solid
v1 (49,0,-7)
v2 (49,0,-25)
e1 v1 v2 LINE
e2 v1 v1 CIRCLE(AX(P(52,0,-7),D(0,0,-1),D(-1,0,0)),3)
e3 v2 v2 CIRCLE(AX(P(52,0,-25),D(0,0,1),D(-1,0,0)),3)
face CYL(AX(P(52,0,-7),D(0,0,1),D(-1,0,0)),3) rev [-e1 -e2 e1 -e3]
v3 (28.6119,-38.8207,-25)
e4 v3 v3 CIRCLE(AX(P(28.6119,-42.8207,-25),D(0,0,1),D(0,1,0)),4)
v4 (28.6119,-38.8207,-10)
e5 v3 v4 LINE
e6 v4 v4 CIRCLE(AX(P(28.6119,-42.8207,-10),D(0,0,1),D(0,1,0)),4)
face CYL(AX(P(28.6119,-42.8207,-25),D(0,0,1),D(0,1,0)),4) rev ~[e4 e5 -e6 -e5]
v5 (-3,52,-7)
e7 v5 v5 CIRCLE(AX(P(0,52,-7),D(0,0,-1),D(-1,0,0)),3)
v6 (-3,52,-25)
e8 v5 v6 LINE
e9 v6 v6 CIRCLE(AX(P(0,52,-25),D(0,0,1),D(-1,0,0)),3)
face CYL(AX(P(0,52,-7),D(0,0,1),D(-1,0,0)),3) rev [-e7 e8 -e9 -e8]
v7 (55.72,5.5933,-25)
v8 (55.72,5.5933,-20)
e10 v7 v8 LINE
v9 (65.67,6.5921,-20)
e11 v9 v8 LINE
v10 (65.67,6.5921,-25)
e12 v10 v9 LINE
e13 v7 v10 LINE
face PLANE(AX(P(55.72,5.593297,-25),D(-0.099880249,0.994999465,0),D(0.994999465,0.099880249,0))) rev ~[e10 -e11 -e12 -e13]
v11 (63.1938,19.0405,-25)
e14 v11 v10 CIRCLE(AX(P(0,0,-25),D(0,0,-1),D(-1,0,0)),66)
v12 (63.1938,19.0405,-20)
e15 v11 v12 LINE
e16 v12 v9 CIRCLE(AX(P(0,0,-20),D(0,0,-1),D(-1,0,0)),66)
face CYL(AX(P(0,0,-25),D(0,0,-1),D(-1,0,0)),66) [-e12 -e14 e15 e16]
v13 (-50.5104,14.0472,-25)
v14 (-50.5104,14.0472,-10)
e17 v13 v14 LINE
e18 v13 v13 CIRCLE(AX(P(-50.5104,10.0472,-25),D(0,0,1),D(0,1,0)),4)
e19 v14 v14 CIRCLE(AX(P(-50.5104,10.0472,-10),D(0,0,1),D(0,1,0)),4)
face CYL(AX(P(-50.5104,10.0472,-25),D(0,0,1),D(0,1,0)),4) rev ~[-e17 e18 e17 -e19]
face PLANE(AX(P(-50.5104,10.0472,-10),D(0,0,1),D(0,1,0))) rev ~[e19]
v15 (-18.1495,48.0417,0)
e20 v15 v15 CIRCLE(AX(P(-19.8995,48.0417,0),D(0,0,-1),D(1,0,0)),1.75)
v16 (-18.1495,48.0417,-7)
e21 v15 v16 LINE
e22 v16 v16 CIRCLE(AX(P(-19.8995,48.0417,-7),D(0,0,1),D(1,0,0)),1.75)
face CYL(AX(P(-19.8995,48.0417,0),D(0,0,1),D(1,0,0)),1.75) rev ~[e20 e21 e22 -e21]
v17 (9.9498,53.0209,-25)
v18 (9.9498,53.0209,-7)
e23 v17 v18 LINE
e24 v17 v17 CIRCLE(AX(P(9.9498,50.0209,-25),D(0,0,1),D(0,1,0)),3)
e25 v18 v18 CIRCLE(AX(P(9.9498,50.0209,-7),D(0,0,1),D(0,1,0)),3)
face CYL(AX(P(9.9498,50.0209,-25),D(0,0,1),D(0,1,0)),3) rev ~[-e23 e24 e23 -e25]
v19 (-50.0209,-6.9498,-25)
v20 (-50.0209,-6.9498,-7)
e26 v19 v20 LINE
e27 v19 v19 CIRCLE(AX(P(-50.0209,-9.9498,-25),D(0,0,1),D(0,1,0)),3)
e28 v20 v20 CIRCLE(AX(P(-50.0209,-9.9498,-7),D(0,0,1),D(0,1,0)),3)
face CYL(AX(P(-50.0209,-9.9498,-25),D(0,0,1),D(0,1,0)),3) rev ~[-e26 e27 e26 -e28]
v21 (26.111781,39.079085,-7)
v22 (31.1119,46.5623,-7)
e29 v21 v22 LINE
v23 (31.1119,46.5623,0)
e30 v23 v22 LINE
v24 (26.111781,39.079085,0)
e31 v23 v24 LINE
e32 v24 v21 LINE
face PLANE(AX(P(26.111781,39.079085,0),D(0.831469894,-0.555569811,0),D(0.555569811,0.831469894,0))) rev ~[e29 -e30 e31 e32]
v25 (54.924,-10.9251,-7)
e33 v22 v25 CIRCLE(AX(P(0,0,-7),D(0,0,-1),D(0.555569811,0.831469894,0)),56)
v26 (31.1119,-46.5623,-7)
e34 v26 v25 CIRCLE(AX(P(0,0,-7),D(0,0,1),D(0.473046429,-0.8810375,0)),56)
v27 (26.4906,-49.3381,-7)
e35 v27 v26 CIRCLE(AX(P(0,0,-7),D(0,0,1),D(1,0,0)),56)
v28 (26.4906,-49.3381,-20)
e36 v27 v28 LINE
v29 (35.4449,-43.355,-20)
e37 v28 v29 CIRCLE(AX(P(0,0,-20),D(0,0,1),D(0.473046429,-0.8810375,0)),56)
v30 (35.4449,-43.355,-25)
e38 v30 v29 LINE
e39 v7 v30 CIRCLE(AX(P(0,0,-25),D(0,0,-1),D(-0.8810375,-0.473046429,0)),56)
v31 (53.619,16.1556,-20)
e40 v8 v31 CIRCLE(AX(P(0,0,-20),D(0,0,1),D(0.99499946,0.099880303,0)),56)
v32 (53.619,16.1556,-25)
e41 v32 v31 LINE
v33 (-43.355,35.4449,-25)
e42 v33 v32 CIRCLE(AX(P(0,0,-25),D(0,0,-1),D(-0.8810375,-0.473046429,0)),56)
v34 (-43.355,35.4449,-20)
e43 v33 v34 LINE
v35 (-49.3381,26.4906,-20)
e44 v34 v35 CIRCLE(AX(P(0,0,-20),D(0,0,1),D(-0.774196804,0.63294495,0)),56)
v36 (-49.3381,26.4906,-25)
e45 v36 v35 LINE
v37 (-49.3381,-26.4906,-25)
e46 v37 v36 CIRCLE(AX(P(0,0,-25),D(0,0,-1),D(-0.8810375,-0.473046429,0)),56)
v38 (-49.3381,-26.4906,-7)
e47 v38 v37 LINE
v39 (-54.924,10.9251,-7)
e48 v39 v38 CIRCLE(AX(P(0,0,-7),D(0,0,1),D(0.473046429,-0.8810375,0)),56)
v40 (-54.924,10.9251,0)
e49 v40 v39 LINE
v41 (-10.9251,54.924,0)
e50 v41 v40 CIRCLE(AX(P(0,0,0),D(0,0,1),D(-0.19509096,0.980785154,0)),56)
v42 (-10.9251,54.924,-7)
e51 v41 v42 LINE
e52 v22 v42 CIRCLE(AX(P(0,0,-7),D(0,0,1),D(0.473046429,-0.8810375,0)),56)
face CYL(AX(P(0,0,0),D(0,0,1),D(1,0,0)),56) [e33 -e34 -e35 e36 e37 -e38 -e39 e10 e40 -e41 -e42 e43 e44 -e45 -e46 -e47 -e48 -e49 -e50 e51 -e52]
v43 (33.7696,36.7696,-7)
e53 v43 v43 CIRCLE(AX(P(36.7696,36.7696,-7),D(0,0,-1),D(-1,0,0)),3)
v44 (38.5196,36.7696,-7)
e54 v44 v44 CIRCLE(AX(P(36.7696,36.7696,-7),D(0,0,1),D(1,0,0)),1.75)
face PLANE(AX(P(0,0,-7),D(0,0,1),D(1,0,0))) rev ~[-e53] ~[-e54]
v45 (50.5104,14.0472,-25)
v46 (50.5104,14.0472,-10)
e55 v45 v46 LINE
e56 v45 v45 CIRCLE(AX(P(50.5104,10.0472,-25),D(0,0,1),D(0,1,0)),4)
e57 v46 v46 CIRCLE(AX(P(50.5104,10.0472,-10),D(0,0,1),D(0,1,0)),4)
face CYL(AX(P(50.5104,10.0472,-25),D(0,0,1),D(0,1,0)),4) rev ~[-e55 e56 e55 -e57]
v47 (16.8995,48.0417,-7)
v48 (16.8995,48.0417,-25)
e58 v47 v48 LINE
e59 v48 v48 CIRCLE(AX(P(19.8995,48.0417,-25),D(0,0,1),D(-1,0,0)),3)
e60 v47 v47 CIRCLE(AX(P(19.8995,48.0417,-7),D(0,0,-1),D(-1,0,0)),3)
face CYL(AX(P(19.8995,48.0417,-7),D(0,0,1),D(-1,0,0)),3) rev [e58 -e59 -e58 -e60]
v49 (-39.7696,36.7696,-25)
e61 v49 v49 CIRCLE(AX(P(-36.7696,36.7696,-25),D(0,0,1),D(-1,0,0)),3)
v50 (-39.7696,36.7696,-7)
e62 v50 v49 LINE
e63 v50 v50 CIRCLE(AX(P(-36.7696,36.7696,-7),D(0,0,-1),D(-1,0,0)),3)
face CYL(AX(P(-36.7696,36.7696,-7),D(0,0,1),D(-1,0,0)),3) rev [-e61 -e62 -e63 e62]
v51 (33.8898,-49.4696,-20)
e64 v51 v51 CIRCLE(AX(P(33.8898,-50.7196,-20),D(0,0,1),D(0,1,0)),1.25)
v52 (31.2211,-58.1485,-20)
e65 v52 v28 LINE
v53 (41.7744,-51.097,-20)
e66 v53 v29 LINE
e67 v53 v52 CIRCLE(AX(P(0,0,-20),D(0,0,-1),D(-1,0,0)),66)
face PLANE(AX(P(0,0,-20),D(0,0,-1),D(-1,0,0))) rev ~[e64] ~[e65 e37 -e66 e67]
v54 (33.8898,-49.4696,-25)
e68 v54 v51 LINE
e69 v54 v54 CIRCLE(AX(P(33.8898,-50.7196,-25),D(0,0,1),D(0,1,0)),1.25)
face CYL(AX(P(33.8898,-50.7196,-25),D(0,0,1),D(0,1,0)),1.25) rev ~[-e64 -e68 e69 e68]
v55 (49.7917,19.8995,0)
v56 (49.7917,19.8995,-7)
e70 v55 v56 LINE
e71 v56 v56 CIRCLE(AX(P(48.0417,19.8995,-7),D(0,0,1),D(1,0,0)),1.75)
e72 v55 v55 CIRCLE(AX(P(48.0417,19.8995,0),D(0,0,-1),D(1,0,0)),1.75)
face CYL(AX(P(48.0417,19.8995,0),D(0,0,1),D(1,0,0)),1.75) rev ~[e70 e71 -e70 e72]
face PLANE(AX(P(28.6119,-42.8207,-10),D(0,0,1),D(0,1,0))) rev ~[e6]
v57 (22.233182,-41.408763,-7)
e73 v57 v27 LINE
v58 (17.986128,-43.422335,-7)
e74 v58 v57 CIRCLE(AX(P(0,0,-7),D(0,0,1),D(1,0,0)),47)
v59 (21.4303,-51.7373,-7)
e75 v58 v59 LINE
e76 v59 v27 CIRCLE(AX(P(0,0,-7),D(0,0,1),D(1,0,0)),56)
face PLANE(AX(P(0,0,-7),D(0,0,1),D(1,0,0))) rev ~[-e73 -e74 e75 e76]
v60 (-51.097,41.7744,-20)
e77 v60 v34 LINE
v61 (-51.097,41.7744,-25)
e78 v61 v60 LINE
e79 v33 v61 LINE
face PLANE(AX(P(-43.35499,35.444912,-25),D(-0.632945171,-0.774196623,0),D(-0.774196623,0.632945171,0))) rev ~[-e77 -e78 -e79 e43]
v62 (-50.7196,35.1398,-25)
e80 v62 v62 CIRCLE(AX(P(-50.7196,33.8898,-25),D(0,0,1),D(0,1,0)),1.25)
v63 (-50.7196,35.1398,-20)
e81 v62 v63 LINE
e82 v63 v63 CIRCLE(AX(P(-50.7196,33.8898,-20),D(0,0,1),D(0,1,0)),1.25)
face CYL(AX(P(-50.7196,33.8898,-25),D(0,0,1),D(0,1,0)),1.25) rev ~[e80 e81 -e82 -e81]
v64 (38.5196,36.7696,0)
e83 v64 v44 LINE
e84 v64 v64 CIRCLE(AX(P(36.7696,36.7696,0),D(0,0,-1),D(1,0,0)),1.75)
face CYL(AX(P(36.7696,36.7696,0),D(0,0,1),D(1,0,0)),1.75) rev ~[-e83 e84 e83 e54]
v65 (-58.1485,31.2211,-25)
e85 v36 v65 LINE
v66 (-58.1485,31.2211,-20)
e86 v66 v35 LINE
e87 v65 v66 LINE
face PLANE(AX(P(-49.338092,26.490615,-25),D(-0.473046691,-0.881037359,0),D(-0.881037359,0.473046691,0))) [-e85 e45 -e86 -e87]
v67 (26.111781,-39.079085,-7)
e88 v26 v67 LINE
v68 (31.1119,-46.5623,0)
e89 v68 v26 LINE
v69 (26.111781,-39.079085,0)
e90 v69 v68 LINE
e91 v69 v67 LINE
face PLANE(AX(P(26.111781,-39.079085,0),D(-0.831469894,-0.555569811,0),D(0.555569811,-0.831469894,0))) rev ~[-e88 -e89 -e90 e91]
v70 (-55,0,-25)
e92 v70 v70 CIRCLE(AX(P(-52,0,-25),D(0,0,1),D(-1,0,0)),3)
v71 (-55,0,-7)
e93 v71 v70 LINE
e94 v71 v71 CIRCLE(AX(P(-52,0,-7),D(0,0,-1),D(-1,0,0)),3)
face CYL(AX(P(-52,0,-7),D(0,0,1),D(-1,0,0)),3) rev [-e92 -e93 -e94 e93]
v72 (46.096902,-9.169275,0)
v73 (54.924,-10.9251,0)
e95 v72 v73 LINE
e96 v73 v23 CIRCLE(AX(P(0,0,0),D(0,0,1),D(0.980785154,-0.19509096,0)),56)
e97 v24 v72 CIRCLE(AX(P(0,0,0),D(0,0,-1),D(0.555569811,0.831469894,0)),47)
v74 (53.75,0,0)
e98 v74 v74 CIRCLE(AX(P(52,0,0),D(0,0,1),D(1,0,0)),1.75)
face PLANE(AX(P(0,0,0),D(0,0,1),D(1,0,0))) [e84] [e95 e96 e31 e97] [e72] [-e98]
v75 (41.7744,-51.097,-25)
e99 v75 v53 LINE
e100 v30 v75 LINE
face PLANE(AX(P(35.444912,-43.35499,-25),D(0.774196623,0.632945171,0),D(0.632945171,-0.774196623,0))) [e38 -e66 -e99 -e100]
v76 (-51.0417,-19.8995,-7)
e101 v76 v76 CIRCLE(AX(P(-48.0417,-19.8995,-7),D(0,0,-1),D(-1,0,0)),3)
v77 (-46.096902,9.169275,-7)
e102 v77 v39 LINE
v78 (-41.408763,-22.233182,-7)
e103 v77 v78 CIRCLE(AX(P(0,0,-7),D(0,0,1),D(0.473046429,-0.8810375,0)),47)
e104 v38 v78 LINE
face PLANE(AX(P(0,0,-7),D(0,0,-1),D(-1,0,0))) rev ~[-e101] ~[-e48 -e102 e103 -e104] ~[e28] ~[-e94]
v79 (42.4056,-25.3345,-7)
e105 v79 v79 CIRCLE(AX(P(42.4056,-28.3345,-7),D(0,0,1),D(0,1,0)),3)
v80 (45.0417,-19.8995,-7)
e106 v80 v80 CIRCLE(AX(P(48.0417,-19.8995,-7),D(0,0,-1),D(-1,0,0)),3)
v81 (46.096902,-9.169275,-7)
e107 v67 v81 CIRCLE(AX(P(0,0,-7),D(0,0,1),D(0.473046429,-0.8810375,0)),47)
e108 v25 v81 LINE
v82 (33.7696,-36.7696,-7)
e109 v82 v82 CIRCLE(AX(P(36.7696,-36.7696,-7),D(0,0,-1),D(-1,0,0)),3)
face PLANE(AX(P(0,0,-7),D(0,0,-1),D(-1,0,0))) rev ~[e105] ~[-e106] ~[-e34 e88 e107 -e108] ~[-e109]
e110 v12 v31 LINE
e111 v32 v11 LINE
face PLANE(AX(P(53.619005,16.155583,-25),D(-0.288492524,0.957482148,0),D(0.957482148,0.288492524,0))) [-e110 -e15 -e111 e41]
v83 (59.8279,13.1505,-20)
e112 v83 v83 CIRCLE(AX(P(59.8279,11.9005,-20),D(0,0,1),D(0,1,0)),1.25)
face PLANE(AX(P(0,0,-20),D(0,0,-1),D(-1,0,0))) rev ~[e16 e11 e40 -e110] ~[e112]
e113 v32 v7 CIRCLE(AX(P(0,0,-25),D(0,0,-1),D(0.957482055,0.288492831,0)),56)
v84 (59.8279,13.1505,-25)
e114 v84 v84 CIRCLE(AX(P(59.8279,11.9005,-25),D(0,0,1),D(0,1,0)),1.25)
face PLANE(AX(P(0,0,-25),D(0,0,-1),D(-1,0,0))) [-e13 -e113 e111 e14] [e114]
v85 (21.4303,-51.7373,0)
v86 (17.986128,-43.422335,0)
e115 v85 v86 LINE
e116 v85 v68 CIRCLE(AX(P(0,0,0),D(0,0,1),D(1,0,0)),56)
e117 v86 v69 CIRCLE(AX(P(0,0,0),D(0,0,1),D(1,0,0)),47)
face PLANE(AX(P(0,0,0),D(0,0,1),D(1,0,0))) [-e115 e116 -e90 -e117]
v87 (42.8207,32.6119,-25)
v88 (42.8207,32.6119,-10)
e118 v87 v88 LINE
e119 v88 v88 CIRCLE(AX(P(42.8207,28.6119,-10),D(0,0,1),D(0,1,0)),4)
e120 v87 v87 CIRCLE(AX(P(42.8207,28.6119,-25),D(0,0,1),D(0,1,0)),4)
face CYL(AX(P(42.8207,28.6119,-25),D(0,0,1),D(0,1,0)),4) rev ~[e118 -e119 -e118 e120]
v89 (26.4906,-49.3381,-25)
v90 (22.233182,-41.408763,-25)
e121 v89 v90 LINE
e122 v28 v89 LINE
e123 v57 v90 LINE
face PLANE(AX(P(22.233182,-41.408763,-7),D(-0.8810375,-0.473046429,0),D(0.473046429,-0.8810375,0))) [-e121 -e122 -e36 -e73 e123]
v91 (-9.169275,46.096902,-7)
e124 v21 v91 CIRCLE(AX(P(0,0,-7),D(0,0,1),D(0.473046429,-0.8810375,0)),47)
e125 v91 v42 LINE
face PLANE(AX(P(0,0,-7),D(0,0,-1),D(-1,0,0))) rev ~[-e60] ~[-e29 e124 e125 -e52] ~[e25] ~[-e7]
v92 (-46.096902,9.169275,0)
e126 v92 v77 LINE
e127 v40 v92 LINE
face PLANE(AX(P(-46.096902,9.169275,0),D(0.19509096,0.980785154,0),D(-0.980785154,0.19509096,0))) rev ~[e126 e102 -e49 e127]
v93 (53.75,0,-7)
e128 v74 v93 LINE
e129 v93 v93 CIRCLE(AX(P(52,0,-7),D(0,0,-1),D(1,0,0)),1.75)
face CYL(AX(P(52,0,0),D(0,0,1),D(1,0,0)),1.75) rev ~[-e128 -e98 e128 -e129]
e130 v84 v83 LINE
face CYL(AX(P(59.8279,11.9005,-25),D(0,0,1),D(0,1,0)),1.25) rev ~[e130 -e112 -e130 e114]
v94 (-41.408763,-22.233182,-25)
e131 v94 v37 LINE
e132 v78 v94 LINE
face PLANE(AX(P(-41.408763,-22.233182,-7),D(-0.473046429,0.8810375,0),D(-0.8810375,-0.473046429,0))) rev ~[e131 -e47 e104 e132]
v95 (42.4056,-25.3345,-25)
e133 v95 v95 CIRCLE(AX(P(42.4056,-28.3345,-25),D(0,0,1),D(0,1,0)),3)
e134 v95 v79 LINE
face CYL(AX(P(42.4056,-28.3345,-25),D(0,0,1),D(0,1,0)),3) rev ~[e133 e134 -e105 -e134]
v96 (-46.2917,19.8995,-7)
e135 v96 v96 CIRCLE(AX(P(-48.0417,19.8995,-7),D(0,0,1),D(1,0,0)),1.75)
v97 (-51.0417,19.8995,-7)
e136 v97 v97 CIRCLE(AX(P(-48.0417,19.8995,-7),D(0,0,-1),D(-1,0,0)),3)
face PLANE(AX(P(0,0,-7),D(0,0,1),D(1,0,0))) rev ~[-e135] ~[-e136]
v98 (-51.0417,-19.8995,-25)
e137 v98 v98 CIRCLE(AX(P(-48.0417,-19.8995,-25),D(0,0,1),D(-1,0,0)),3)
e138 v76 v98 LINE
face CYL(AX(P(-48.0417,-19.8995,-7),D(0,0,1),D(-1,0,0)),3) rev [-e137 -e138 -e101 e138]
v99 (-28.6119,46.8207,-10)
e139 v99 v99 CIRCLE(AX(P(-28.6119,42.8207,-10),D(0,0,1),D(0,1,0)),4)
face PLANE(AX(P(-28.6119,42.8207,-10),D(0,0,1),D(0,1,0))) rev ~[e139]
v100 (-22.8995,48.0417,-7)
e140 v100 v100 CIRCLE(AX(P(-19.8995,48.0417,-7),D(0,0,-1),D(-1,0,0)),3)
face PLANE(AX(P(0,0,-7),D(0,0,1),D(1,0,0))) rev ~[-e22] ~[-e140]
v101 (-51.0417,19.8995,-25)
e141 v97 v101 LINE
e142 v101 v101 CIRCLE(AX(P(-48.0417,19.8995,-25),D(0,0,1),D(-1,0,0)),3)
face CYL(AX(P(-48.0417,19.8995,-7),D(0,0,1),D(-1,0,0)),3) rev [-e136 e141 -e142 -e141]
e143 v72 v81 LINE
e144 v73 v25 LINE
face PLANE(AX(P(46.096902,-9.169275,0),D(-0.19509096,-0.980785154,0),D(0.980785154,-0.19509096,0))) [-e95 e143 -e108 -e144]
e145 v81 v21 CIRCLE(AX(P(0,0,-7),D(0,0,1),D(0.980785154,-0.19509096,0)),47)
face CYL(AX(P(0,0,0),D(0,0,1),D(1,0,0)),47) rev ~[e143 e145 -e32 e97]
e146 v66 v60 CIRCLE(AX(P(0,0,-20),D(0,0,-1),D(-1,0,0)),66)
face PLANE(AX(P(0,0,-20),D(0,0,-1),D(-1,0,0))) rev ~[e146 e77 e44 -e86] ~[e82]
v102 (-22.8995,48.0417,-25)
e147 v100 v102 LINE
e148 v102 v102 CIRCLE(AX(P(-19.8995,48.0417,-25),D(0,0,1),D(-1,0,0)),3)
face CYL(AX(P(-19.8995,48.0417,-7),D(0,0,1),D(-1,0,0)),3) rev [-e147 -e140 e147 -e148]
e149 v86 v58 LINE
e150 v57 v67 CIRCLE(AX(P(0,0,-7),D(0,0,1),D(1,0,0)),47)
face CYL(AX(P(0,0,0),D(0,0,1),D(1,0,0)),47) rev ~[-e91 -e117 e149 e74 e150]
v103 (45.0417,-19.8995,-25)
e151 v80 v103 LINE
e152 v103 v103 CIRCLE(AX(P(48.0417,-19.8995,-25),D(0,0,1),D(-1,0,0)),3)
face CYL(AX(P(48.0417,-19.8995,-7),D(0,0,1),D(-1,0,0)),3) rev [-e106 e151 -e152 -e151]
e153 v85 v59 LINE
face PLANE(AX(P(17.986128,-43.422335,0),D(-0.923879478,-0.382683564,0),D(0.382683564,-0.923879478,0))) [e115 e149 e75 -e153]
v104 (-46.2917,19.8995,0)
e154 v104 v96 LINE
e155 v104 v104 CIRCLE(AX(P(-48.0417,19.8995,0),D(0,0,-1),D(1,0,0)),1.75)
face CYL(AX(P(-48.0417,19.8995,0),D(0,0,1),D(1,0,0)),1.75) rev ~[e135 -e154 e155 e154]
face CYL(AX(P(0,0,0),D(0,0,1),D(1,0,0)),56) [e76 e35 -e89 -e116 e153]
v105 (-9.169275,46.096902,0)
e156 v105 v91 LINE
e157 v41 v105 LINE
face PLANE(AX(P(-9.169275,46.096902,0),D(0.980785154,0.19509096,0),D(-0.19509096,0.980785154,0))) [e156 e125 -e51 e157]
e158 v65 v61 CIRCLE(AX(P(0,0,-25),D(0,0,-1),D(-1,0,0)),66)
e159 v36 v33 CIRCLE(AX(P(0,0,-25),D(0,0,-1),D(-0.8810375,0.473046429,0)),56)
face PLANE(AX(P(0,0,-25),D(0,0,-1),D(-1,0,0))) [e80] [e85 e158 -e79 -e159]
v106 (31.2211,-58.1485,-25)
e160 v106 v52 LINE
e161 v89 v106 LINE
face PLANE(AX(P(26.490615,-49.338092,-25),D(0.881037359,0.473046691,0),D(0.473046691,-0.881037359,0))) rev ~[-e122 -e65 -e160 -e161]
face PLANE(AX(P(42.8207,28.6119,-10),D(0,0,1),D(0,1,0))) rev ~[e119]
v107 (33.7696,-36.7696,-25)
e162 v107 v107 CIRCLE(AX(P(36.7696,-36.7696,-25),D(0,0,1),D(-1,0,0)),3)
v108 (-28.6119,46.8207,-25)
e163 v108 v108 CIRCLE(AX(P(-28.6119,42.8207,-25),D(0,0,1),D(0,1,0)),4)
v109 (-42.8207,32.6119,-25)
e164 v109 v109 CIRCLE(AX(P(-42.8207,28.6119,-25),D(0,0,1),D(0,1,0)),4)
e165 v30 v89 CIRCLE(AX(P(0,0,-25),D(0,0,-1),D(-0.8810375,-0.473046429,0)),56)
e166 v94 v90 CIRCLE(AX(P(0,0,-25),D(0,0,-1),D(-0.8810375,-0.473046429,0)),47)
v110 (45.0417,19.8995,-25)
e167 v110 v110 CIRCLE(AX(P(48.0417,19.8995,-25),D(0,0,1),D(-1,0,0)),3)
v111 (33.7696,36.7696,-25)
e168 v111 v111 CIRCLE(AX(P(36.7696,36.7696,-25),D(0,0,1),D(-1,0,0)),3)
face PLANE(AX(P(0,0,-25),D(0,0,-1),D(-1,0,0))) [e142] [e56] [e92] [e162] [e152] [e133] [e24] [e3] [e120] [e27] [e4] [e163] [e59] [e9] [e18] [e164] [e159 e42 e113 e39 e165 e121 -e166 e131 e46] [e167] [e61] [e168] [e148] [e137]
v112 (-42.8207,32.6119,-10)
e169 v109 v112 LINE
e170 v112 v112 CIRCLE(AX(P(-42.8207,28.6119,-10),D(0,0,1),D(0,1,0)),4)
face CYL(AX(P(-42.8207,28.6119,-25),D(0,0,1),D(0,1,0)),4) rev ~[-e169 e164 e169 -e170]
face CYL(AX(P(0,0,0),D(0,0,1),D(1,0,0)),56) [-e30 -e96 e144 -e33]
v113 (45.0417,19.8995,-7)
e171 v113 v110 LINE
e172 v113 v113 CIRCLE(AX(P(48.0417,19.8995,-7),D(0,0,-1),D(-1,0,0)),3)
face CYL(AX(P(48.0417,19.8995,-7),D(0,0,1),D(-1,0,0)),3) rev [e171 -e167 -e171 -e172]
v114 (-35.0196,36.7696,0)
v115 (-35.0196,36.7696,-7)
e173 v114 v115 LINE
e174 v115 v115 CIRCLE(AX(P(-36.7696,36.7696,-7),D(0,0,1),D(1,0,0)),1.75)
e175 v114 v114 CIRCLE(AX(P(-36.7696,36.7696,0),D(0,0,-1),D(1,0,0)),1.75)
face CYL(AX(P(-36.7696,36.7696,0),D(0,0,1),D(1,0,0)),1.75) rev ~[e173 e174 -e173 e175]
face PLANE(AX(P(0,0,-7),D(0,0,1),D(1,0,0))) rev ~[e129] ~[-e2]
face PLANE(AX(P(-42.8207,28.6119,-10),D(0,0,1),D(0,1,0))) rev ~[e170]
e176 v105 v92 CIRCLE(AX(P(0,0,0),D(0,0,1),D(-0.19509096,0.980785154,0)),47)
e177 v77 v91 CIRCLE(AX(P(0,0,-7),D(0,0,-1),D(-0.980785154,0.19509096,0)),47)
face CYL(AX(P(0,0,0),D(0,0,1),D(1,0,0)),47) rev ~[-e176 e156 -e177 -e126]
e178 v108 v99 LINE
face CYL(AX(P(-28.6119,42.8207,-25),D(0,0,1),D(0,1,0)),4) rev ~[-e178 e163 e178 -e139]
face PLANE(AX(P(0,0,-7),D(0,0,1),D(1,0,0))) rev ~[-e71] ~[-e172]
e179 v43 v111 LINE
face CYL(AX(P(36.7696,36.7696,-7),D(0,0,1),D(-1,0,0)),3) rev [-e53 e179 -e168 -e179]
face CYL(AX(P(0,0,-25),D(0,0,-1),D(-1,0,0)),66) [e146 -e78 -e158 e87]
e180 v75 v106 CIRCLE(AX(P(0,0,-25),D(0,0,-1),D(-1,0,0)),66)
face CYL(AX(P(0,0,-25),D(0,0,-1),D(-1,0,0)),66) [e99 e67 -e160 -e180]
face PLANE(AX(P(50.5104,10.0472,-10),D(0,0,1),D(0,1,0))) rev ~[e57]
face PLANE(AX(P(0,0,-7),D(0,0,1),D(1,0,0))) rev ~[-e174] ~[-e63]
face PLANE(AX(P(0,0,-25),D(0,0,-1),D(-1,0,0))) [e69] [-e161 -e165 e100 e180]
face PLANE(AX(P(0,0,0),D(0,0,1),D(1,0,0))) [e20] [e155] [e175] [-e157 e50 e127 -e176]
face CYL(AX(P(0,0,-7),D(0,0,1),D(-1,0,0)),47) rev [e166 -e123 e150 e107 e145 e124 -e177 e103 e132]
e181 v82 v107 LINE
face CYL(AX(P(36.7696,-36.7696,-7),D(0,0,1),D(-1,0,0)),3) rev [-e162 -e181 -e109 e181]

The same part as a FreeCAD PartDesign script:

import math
import FreeCAD as App
import Part
import Sketcher

V = App.Vector
Q = App.Units.Quantity

doc = App.newDocument("Part")
params = doc.addObject("Spreadsheet::Sheet", "Params")
for row, (alias, value) in enumerate([
    ("sketch1_radius", "56 mm"),
    ("sketch1_radius2", "47 mm"),
    ("sketch1_diameter", "3.5 mm"),
    ("pad1_length", "7 mm"),
    ("sketch2_diameter", "6 mm"),
    ("sketch2_radius", "56 mm"),
    ("sketch2_radius2", "47 mm"),
    ("pad2_length", "18 mm"),
    ("sketch3_diameter", "8 mm"),
    ("hole_diameter", "8 mm"),
    ("hole_depth", "15 mm"),
    ("sketch4_radius", "56 mm"),
    ("sketch4_radius2", "66 mm"),
    ("pad3_length", "5 mm"),
    ("sketch5_diameter", "2.5 mm"),
    ("hole2_diameter", "2.5 mm"),
    ("sketch6_diameter", "6 mm"),
    ("hole3_diameter", "6 mm"),
], start=1):
    params.set(f"A{row}", alias)
    params.set(f"B{row}", "=" + value)
    params.setAlias(f"B{row}", alias)

body = doc.addObject("PartDesign::Body", "Body")
body.AllowCompound = True

# Sketch on XY plane
sketch1 = body.newObject("Sketcher::SketchObject", "Sketch")
sketch1.AttachmentSupport = (doc.getObject("XY_Plane"), [""])
sketch1.MapMode = "FlatFace"
sketch1.addGeometry(Part.LineSegment(V(46.1, -9.2, 0), V(54.9, -10.9, 0)), False)
sketch1.addGeometry(Part.ArcOfCircle(Part.Circle(V(0, 0, 0), V(0, 0, 1), 56), math.radians(-11), math.radians(56)), False)
sketch1.addGeometry(Part.LineSegment(V(31.1, 46.6, 0), V(26.1, 39.1, 0)), False)
sketch1.addGeometry(Part.ArcOfCircle(Part.Circle(V(0, 0, 0), V(0, 0, 1), 47), math.radians(-11), math.radians(56)), False)
sketch1.addGeometry(Part.Circle(V(52, 0, 0), V(0, 0, 1), 1.8), False)
sketch1.addGeometry(Part.Circle(V(48, 19.9, 0), V(0, 0, 1), 1.8), False)
sketch1.addGeometry(Part.Circle(V(36.8, 36.8, 0), V(0, 0, 1), 1.8), False)
sketch1.addGeometry(Part.LineSegment(V(-9.2, 46.1, 0), V(-10.9, 54.9, 0)), False)
sketch1.addGeometry(Part.ArcOfCircle(Part.Circle(V(0, 0, 0), V(0, 0, 1), 56), math.radians(101), math.radians(169)), False)
sketch1.addGeometry(Part.LineSegment(V(-54.9, 10.9, 0), V(-46.1, 9.2, 0)), False)
sketch1.addGeometry(Part.ArcOfCircle(Part.Circle(V(0, 0, 0), V(0, 0, 1), 47), math.radians(101), math.radians(169)), False)
sketch1.addGeometry(Part.Circle(V(-19.9, 48, 0), V(0, 0, 1), 1.8), False)
sketch1.addGeometry(Part.Circle(V(-36.8, 36.8, 0), V(0, 0, 1), 1.8), False)
sketch1.addGeometry(Part.Circle(V(-48, 19.9, 0), V(0, 0, 1), 1.8), False)
sketch1.addGeometry(Part.ArcOfCircle(Part.Circle(V(0, 0, 0), V(0, 0, 1), 47), math.radians(-67.5), math.radians(-56.25)), False)
sketch1.addGeometry(Part.LineSegment(V(18, -43.4, 0), V(21.4, -51.7, 0)), False)
sketch1.addGeometry(Part.ArcOfCircle(Part.Circle(V(0, 0, 0), V(0, 0, 1), 56), math.radians(-67.5), math.radians(-56.25)), False)
sketch1.addGeometry(Part.LineSegment(V(31.1, -46.6, 0), V(26.1, -39.1, 0)), False)
sketch1.addConstraint(Sketcher.Constraint("Coincident", 0, 2, 1, 1))
sketch1.addConstraint(Sketcher.Constraint("Coincident", 1, 2, 2, 1))
sketch1.addConstraint(Sketcher.Constraint("Coincident", 2, 2, 3, 2))
sketch1.addConstraint(Sketcher.Constraint("Coincident", 3, 1, 0, 1))
sketch1.addConstraint(Sketcher.Constraint("Coincident", 7, 2, 8, 1))
sketch1.addConstraint(Sketcher.Constraint("Coincident", 8, 2, 9, 1))
sketch1.addConstraint(Sketcher.Constraint("Coincident", 9, 2, 10, 2))
sketch1.addConstraint(Sketcher.Constraint("Coincident", 10, 1, 7, 1))
sketch1.addConstraint(Sketcher.Constraint("Coincident", 14, 1, 15, 1))
sketch1.addConstraint(Sketcher.Constraint("Coincident", 15, 2, 16, 1))
sketch1.addConstraint(Sketcher.Constraint("Coincident", 16, 2, 17, 1))
sketch1.addConstraint(Sketcher.Constraint("Coincident", 17, 2, 14, 2))
sketch1.addConstraint(Sketcher.Constraint("Coincident", 1, 3, -1, 1))
sketch1.addConstraint(Sketcher.Constraint("Coincident", 3, 3, -1, 1))
sketch1.addConstraint(Sketcher.Constraint("Coincident", 8, 3, -1, 1))
sketch1.addConstraint(Sketcher.Constraint("Coincident", 10, 3, -1, 1))
sketch1.addConstraint(Sketcher.Constraint("Coincident", 14, 3, -1, 1))
sketch1.addConstraint(Sketcher.Constraint("Coincident", 16, 3, -1, 1))
sketch1.addConstraint(Sketcher.Constraint("Equal", 4, 5))
sketch1.addConstraint(Sketcher.Constraint("Equal", 5, 6))
sketch1.addConstraint(Sketcher.Constraint("Equal", 1, 8))
sketch1.addConstraint(Sketcher.Constraint("Equal", 3, 10))
sketch1.addConstraint(Sketcher.Constraint("Equal", 6, 11))
sketch1.addConstraint(Sketcher.Constraint("Equal", 11, 12))
sketch1.addConstraint(Sketcher.Constraint("Equal", 12, 13))
sketch1.addConstraint(Sketcher.Constraint("Equal", 10, 14))
sketch1.addConstraint(Sketcher.Constraint("Equal", 8, 16))
sketch1.addConstraint(Sketcher.Constraint("Symmetric", 6, 3, 12, 3, -2))
sketch1.addConstraint(Sketcher.Constraint("Symmetric", 5, 3, 13, 3, -2))
sketch1.addConstraint(Sketcher.Constraint("PointOnObject", 4, 3, -1))
sketch1.addConstraint(Sketcher.Constraint("Parallel", 0, 9))
sketch1.addConstraint(Sketcher.Constraint("Vertical", 1, 2, 16, 2))
sketch1.addConstraint(Sketcher.Constraint("Vertical", 2, 2, 17, 2))
sketch1.addConstraint(Sketcher.Constraint("Radius", 1, Q("56 mm")))
sketch1.addConstraint(Sketcher.Constraint("Radius", 3, Q("47 mm")))
sketch1.addConstraint(Sketcher.Constraint("Diameter", 4, Q("3.5 mm")))
sketch1.addConstraint(Sketcher.Constraint("DistanceX", -1, 1, 4, 3, Q("52 mm")))
sketch1.addConstraint(Sketcher.Constraint("Angle", 15, Q("-67.5 deg")))
sketch1.addConstraint(Sketcher.Constraint("Angle", 0, Q("-11.25 deg")))
sketch1.addConstraint(Sketcher.Constraint("Angle", 2, Q("-123.75 deg")))
sketch1.addConstraint(Sketcher.Constraint("Angle", 7, Q("101.25 deg")))
sketch1.addConstraint(Sketcher.Constraint("DistanceY", 5, 3, 6, 3, Q("16.87 mm")))
sketch1.addConstraint(Sketcher.Constraint("DistanceX", 12, 3, 11, 3, Q("16.87 mm")))
sketch1.addConstraint(Sketcher.Constraint("DistanceX", 2, 2, 5, 3, Q("21.93 mm")))
sketch1.addConstraint(Sketcher.Constraint("DistanceY", 16, 2, 14, 1, Q("3.14 mm")))
sketch1.addConstraint(Sketcher.Constraint("DistanceX", -1, 1, 0, 2, Q("54.924 mm")))
sketch1.addConstraint(Sketcher.Constraint("DistanceX", -1, 1, 1, 2, Q("31.112 mm")))
sketch1.addConstraint(Sketcher.Constraint("DistanceX", 7, 2, -1, 1, Q("10.925 mm")))
sketch1.addConstraint(Sketcher.Constraint("DistanceX", 8, 2, -1, 1, Q("54.924 mm")))
sketch1.addConstraint(Sketcher.Constraint("DistanceX", 6, 3, 5, 3, Q("11.272 mm")))
sketch1.addConstraint(Sketcher.Constraint("DistanceY", 6, 3, 11, 3, Q("11.272 mm")))
sketch1.addConstraint(Sketcher.Constraint("DistanceY", -1, 1, 5, 3, Q("19.8995 mm")))
sketch1.setExpression("Constraints[33]", "Params.sketch1_radius")
sketch1.setExpression("Constraints[34]", "Params.sketch1_radius2")
sketch1.setExpression("Constraints[35]", "Params.sketch1_diameter")
pad1 = body.newObject("PartDesign::Pad", "Pad")
pad1.Profile = sketch1
pad1.setExpression("Length", "Params.pad1_length")
pad1.Reversed = True

# Sketch on XY plane
sketch2 = body.newObject("Sketcher::SketchObject", "Sketch001")
sketch2.AttachmentSupport = (doc.getObject("XY_Plane"), [""])
sketch2.MapMode = "FlatFace"
sketch2.AttachmentOffset = App.Placement(V(0, 0, -7), App.Rotation())
sketch2.addGeometry(Part.LineSegment(V(-41.4, -22.2, 0), V(-49.3, -26.5, 0)), False)
sketch2.addGeometry(Part.ArcOfCircle(Part.Circle(V(0, 0, 0), V(0, 0, 1), 56), math.radians(-62), math.radians(208)), False)
sketch2.addGeometry(Part.LineSegment(V(26.5, -49.3, 0), V(22.2, -41.4, 0)), False)
sketch2.addGeometry(Part.ArcOfCircle(Part.Circle(V(0, 0, 0), V(0, 0, 1), 47), math.radians(-62), math.radians(208)), False)
sketch2.addGeometry(Part.Circle(V(-52, 0, 0), V(0, 0, 1), 3), False)
sketch2.addGeometry(Part.Circle(V(-48, -19.9, 0), V(0, 0, 1), 3), False)
sketch2.addGeometry(Part.Circle(V(-48, 19.9, 0), V(0, 0, 1), 3), False)
sketch2.addGeometry(Part.Circle(V(-36.8, 36.8, 0), V(0, 0, 1), 3), False)
sketch2.addGeometry(Part.Circle(V(-19.9, 48, 0), V(0, 0, 1), 3), False)
sketch2.addGeometry(Part.Circle(V(0, 52, 0), V(0, 0, 1), 3), False)
sketch2.addGeometry(Part.Circle(V(19.9, 48, 0), V(0, 0, 1), 3), False)
sketch2.addGeometry(Part.Circle(V(36.8, 36.8, 0), V(0, 0, 1), 3), False)
sketch2.addGeometry(Part.Circle(V(48, 19.9, 0), V(0, 0, 1), 3), False)
sketch2.addGeometry(Part.Circle(V(52, 0, 0), V(0, 0, 1), 3), False)
sketch2.addGeometry(Part.Circle(V(48, -19.9, 0), V(0, 0, 1), 3), False)
sketch2.addGeometry(Part.Circle(V(36.8, -36.8, 0), V(0, 0, 1), 3), False)
sketch2.addConstraint(Sketcher.Constraint("Coincident", 0, 2, 1, 2))
sketch2.addConstraint(Sketcher.Constraint("Coincident", 1, 1, 2, 1))
sketch2.addConstraint(Sketcher.Constraint("Coincident", 2, 2, 3, 1))
sketch2.addConstraint(Sketcher.Constraint("Coincident", 3, 2, 0, 1))
sketch2.addConstraint(Sketcher.Constraint("Coincident", 1, 3, -1, 1))
sketch2.addConstraint(Sketcher.Constraint("Coincident", 3, 3, -1, 1))
sketch2.addConstraint(Sketcher.Constraint("Equal", 4, 5))
sketch2.addConstraint(Sketcher.Constraint("Equal", 5, 6))
sketch2.addConstraint(Sketcher.Constraint("Equal", 6, 7))
sketch2.addConstraint(Sketcher.Constraint("Equal", 7, 8))
sketch2.addConstraint(Sketcher.Constraint("Equal", 8, 9))
sketch2.addConstraint(Sketcher.Constraint("Equal", 9, 10))
sketch2.addConstraint(Sketcher.Constraint("Equal", 10, 11))
sketch2.addConstraint(Sketcher.Constraint("Equal", 11, 12))
sketch2.addConstraint(Sketcher.Constraint("Equal", 12, 13))
sketch2.addConstraint(Sketcher.Constraint("Equal", 13, 14))
sketch2.addConstraint(Sketcher.Constraint("Equal", 14, 15))
sketch2.addConstraint(Sketcher.Constraint("Symmetric", 5, 3, 12, 3, -1, 1))
sketch2.addConstraint(Sketcher.Constraint("Symmetric", 4, 3, 13, 3, -1, 1))
sketch2.addConstraint(Sketcher.Constraint("Symmetric", 6, 3, 14, 3, -1, 1))
sketch2.addConstraint(Sketcher.Constraint("Symmetric", 7, 3, 15, 3, -1, 1))
sketch2.addConstraint(Sketcher.Constraint("Symmetric", 8, 3, 10, 3, -2))
sketch2.addConstraint(Sketcher.Constraint("Symmetric", 7, 3, 11, 3, -2))
sketch2.addConstraint(Sketcher.Constraint("Symmetric", 6, 3, 12, 3, -2))
sketch2.addConstraint(Sketcher.Constraint("PointOnObject", 4, 3, -1))
sketch2.addConstraint(Sketcher.Constraint("PointOnObject", 9, 3, -2))
sketch2.addConstraint(Sketcher.Constraint("Perpendicular", 0, 2))
sketch2.addConstraint(Sketcher.Constraint("Diameter", 4, Q("6 mm")))
sketch2.addConstraint(Sketcher.Constraint("Radius", 1, Q("56 mm")))
sketch2.addConstraint(Sketcher.Constraint("Radius", 3, Q("47 mm")))
sketch2.addConstraint(Sketcher.Constraint("DistanceX", 4, 3, -1, 1, Q("52 mm")))
sketch2.addConstraint(Sketcher.Constraint("DistanceY", -1, 1, 9, 3, Q("52 mm")))
sketch2.addConstraint(Sketcher.Constraint("DistanceY", 6, 3, 7, 3, Q("16.87 mm")))
sketch2.addConstraint(Sketcher.Constraint("DistanceX", 7, 3, 8, 3, Q("16.87 mm")))
sketch2.addConstraint(Sketcher.Constraint("DistanceY", 0, 2, 6, 3, Q("46.39 mm")))
sketch2.addConstraint(Sketcher.Constraint("DistanceX", 0, 2, -1, 1, Q("49.338 mm")))
sketch2.addConstraint(Sketcher.Constraint("DistanceY", 1, 1, -1, 1, Q("49.338 mm")))
sketch2.addConstraint(Sketcher.Constraint("DistanceX", 6, 3, 7, 3, Q("11.272 mm")))
sketch2.addConstraint(Sketcher.Constraint("DistanceY", 7, 3, 8, 3, Q("11.272 mm")))
sketch2.addConstraint(Sketcher.Constraint("DistanceX", 8, 3, 10, 3, Q("39.799 mm")))
sketch2.addConstraint(Sketcher.Constraint("DistanceX", 5, 3, 3, 2, Q("6.633 mm")))
sketch2.setExpression("Constraints[27]", "Params.sketch2_diameter")
sketch2.setExpression("Constraints[28]", "Params.sketch2_radius")
sketch2.setExpression("Constraints[29]", "Params.sketch2_radius2")
pad2 = body.newObject("PartDesign::Pad", "Pad001")
pad2.Profile = sketch2
pad2.setExpression("Length", "Params.pad2_length")
pad2.Reversed = True

# Sketch on XY plane
sketch3 = body.newObject("Sketcher::SketchObject", "Sketch002")
sketch3.AttachmentSupport = (doc.getObject("XY_Plane"), [""])
sketch3.MapMode = "FlatFace"
sketch3.AttachmentOffset = App.Placement(V(0, 0, -25), App.Rotation())
sketch3.addGeometry(Part.Circle(V(-28.6, 42.8, 0), V(0, 0, 1), 4), False)
sketch3.addGeometry(Part.Circle(V(-42.8, 28.6, 0), V(0, 0, 1), 4), False)
sketch3.addGeometry(Part.Circle(V(-10, -50.5, 0), V(0, 0, 1), 4), False)
sketch3.addGeometry(Part.Circle(V(50.5, 10, 0), V(0, 0, 1), 4), False)
sketch3.addGeometry(Part.Circle(V(42.8, 28.6, 0), V(0, 0, 1), 4), False)
sketch3.addGeometry(Part.Circle(V(28.6, -42.8, 0), V(0, 0, 1), 4), False)
sketch3.addGeometry(Part.Circle(V(-50.5, 10, 0), V(0, 0, 1), 4), False)
sketch3.addConstraint(Sketcher.Constraint("Equal", 0, 1))
sketch3.addConstraint(Sketcher.Constraint("Equal", 1, 2))
sketch3.addConstraint(Sketcher.Constraint("Equal", 2, 3))
sketch3.addConstraint(Sketcher.Constraint("Equal", 3, 4))
sketch3.addConstraint(Sketcher.Constraint("Equal", 4, 5))
sketch3.addConstraint(Sketcher.Constraint("Equal", 5, 6))
sketch3.addConstraint(Sketcher.Constraint("Symmetric", 0, 3, 5, 3, -1, 1))
sketch3.addConstraint(Sketcher.Constraint("Symmetric", 1, 3, 4, 3, -2))
sketch3.addConstraint(Sketcher.Constraint("Symmetric", 3, 3, 6, 3, -2))
sketch3.addConstraint(Sketcher.Constraint("Diameter", 0, Q("8 mm")))
sketch3.addConstraint(Sketcher.Constraint("DistanceX", 0, 3, -1, 1, Q("28.612 mm")))
sketch3.addConstraint(Sketcher.Constraint("DistanceY", -1, 1, 1, 3, Q("28.612 mm")))
sketch3.addConstraint(Sketcher.Constraint("DistanceY", 2, 3, 0, 3, Q("93.331 mm")))
sketch3.addConstraint(Sketcher.Constraint("DistanceX", 1, 3, 3, 3, Q("93.331 mm")))
sketch3.addConstraint(Sketcher.Constraint("DistanceX", 2, 3, 4, 3, Q("52.868 mm")))
sketch3.addConstraint(Sketcher.Constraint("DistanceX", 2, 3, 5, 3, Q("38.659 mm")))
sketch3.addConstraint(Sketcher.Constraint("DistanceY", 5, 3, 3, 3, Q("52.868 mm")))
sketch3.addConstraint(Sketcher.Constraint("DistanceY", -1, 1, 0, 3, Q("42.8207 mm")))
sketch3.setExpression("Constraints[9]", "Params.sketch3_diameter")
doc.recompute()
hole = body.newObject("PartDesign::Hole", "Hole")
hole.Profile = sketch3
hole.ThreadType = "None"
hole.setExpression("Diameter", "Params.hole_diameter")
hole.DepthType = "Dimension"
hole.setExpression("Depth", "Params.hole_depth")
hole.DrillPoint = "Flat"
hole.Reversed = True

# Sketch on XY plane
sketch4 = body.newObject("Sketcher::SketchObject", "Sketch003")
sketch4.AttachmentSupport = (doc.getObject("XY_Plane"), [""])
sketch4.MapMode = "FlatFace"
sketch4.AttachmentOffset = App.Placement(V(0, 0, -25), App.Rotation())
sketch4.addGeometry(Part.ArcOfCircle(Part.Circle(V(0, 0, 0), V(0, 0, 1), 56), math.radians(5.73), math.radians(16.77)), False)
sketch4.addGeometry(Part.LineSegment(V(54, 16, 0), V(63, 19, 0)), False)
sketch4.addGeometry(Part.ArcOfCircle(Part.Circle(V(0, 0, 0), V(0, 0, 1), 66), math.radians(5.73), math.radians(16.77)), False)
sketch4.addGeometry(Part.LineSegment(V(66, 7, 0), V(56, 6, 0)), False)
sketch4.addGeometry(Part.ArcOfCircle(Part.Circle(V(0, 0, 0), V(0, 0, 1), 56), math.radians(-61.77), math.radians(-50.73)), False)
sketch4.addGeometry(Part.LineSegment(V(35, -43, 0), V(42, -51, 0)), False)
sketch4.addGeometry(Part.ArcOfCircle(Part.Circle(V(0, 0, 0), V(0, 0, 1), 66), math.radians(-61.77), math.radians(-50.73)), False)
sketch4.addGeometry(Part.LineSegment(V(31, -58, 0), V(26, -49, 0)), False)
sketch4.addGeometry(Part.ArcOfCircle(Part.Circle(V(0, 0, 0), V(0, 0, 1), 56), math.radians(140.73), math.radians(151.77)), False)
sketch4.addGeometry(Part.LineSegment(V(-49, 26, 0), V(-58, 31, 0)), False)
sketch4.addGeometry(Part.ArcOfCircle(Part.Circle(V(0, 0, 0), V(0, 0, 1), 66), math.radians(140.73), math.radians(151.77)), False)
sketch4.addGeometry(Part.LineSegment(V(-51, 42, 0), V(-43, 35, 0)), False)
sketch4.addConstraint(Sketcher.Constraint("Coincident", 0, 2, 1, 1))
sketch4.addConstraint(Sketcher.Constraint("Coincident", 1, 2, 2, 2))
sketch4.addConstraint(Sketcher.Constraint("Coincident", 2, 1, 3, 1))
sketch4.addConstraint(Sketcher.Constraint("Coincident", 3, 2, 0, 1))
sketch4.addConstraint(Sketcher.Constraint("Coincident", 4, 2, 5, 1))
sketch4.addConstraint(Sketcher.Constraint("Coincident", 5, 2, 6, 2))
sketch4.addConstraint(Sketcher.Constraint("Coincident", 6, 1, 7, 1))
sketch4.addConstraint(Sketcher.Constraint("Coincident", 7, 2, 4, 1))
sketch4.addConstraint(Sketcher.Constraint("Coincident", 8, 2, 9, 1))
sketch4.addConstraint(Sketcher.Constraint("Coincident", 9, 2, 10, 2))
sketch4.addConstraint(Sketcher.Constraint("Coincident", 10, 1, 11, 1))
sketch4.addConstraint(Sketcher.Constraint("Coincident", 11, 2, 8, 1))
sketch4.addConstraint(Sketcher.Constraint("Coincident", 0, 3, -1, 1))
sketch4.addConstraint(Sketcher.Constraint("Coincident", 2, 3, -1, 1))
sketch4.addConstraint(Sketcher.Constraint("Coincident", 4, 3, -1, 1))
sketch4.addConstraint(Sketcher.Constraint("Coincident", 6, 3, -1, 1))
sketch4.addConstraint(Sketcher.Constraint("Coincident", 8, 3, -1, 1))
sketch4.addConstraint(Sketcher.Constraint("Coincident", 10, 3, -1, 1))
sketch4.addConstraint(Sketcher.Constraint("Equal", 0, 4))
sketch4.addConstraint(Sketcher.Constraint("Equal", 2, 6))
sketch4.addConstraint(Sketcher.Constraint("Equal", 4, 8))
sketch4.addConstraint(Sketcher.Constraint("Equal", 6, 10))
sketch4.addConstraint(Sketcher.Constraint("Radius", 0, Q("56 mm")))
sketch4.addConstraint(Sketcher.Constraint("Radius", 2, Q("66 mm")))
sketch4.addConstraint(Sketcher.Constraint("DistanceX", -1, 1, 2, 1, Q("65.67 mm")))
sketch4.addConstraint(Sketcher.Constraint("DistanceX", -1, 1, 3, 2, Q("55.72 mm")))
sketch4.addConstraint(Sketcher.Constraint("DistanceX", -1, 1, 0, 2, Q("53.619 mm")))
sketch4.addConstraint(Sketcher.Constraint("DistanceX", -1, 1, 4, 2, Q("35.445 mm")))
sketch4.addConstraint(Sketcher.Constraint("DistanceY", 5, 2, -1, 1, Q("51.097 mm")))
sketch4.addConstraint(Sketcher.Constraint("DistanceX", -1, 1, 6, 1, Q("31.221 mm")))
sketch4.addConstraint(Sketcher.Constraint("DistanceY", 7, 2, -1, 1, Q("49.338 mm")))
sketch4.addConstraint(Sketcher.Constraint("DistanceX", 8, 2, -1, 1, Q("49.338 mm")))
sketch4.addConstraint(Sketcher.Constraint("DistanceY", -1, 1, 9, 2, Q("31.221 mm")))
sketch4.addConstraint(Sketcher.Constraint("DistanceX", 10, 1, -1, 1, Q("51.097 mm")))
sketch4.addConstraint(Sketcher.Constraint("DistanceX", 11, 2, -1, 1, Q("43.355 mm")))
sketch4.addConstraint(Sketcher.Constraint("DistanceY", 0, 2, 1, 2, Q("2.885 mm")))
sketch4.setExpression("Constraints[22]", "Params.sketch4_radius")
sketch4.setExpression("Constraints[23]", "Params.sketch4_radius2")
pad3 = body.newObject("PartDesign::Pad", "Pad002")
pad3.Profile = sketch4
pad3.setExpression("Length", "Params.pad3_length")

# Sketch on XY plane
sketch5 = body.newObject("Sketcher::SketchObject", "Sketch004")
sketch5.AttachmentSupport = (doc.getObject("XY_Plane"), [""])
sketch5.MapMode = "FlatFace"
sketch5.AttachmentOffset = App.Placement(V(0, 0, -25), App.Rotation())
sketch5.addGeometry(Part.Circle(V(-50.7, 33.9, 0), V(0, 0, 1), 1.2), False)
sketch5.addGeometry(Part.Circle(V(-11.9, -59.8, 0), V(0, 0, 1), 1.2), False)
sketch5.addGeometry(Part.Circle(V(59.8, 11.9, 0), V(0, 0, 1), 1.2), False)
sketch5.addGeometry(Part.Circle(V(33.9, -50.7, 0), V(0, 0, 1), 1.2), False)
sketch5.addConstraint(Sketcher.Constraint("Equal", 0, 1))
sketch5.addConstraint(Sketcher.Constraint("Equal", 1, 2))
sketch5.addConstraint(Sketcher.Constraint("Equal", 2, 3))
sketch5.addConstraint(Sketcher.Constraint("Diameter", 0, Q("2.5 mm")))
sketch5.addConstraint(Sketcher.Constraint("DistanceY", 3, 3, 2, 3, Q("62.62 mm")))
sketch5.addConstraint(Sketcher.Constraint("DistanceY", 1, 3, -1, 1, Q("59.828 mm")))
sketch5.addConstraint(Sketcher.Constraint("DistanceX", -1, 1, 2, 3, Q("59.828 mm")))
sketch5.addConstraint(Sketcher.Constraint("DistanceX", 0, 3, 1, 3, Q("38.819 mm")))
sketch5.addConstraint(Sketcher.Constraint("DistanceX", 3, 3, 2, 3, Q("25.938 mm")))
sketch5.addConstraint(Sketcher.Constraint("DistanceX", 0, 3, -1, 1, Q("50.7196 mm")))
sketch5.addConstraint(Sketcher.Constraint("DistanceY", -1, 1, 0, 3, Q("33.8898 mm")))
sketch5.addConstraint(Sketcher.Constraint("DistanceY", -1, 1, 2, 3, Q("11.9005 mm")))
sketch5.setExpression("Constraints[3]", "Params.sketch5_diameter")
doc.recompute()
hole2 = body.newObject("PartDesign::Hole", "Hole001")
hole2.Profile = sketch5
hole2.ThreadType = "None"
hole2.setExpression("Diameter", "Params.hole2_diameter")
hole2.DepthType = "ThroughAll"
hole2.Reversed = True

# Sketch on XY plane
sketch6 = body.newObject("Sketcher::SketchObject", "Sketch005")
sketch6.AttachmentSupport = (doc.getObject("XY_Plane"), [""])
sketch6.MapMode = "FlatFace"
sketch6.AttachmentOffset = App.Placement(V(0, 0, -25), App.Rotation())
sketch6.addGeometry(Part.Circle(V(-50, -9.9, 0), V(0, 0, 1), 3), False)
sketch6.addGeometry(Part.Circle(V(9.9, 50, 0), V(0, 0, 1), 3), False)
sketch6.addGeometry(Part.Circle(V(42.4, -28.3, 0), V(0, 0, 1), 3), False)
sketch6.addConstraint(Sketcher.Constraint("Equal", 0, 1))
sketch6.addConstraint(Sketcher.Constraint("Equal", 1, 2))
sketch6.addConstraint(Sketcher.Constraint("Diameter", 0, Q("6 mm")))
sketch6.addConstraint(Sketcher.Constraint("DistanceX", 0, 3, -1, 1, Q("50.021 mm")))
sketch6.addConstraint(Sketcher.Constraint("DistanceY", -1, 1, 1, 3, Q("50.021 mm")))
sketch6.addConstraint(Sketcher.Constraint("DistanceY", 0, 3, -1, 1, Q("9.9498 mm")))
sketch6.addConstraint(Sketcher.Constraint("DistanceX", -1, 1, 1, 3, Q("9.9498 mm")))
sketch6.addConstraint(Sketcher.Constraint("DistanceX", -1, 1, 2, 3, Q("42.4056 mm")))
sketch6.addConstraint(Sketcher.Constraint("DistanceY", 2, 3, -1, 1, Q("28.3345 mm")))
sketch6.setExpression("Constraints[2]", "Params.sketch6_diameter")
doc.recompute()
hole3 = body.newObject("PartDesign::Hole", "Hole002")
hole3.Profile = sketch6
hole3.ThreadType = "None"
hole3.setExpression("Diameter", "Params.hole3_diameter")
hole3.DepthType = "ThroughAll"
hole3.Reversed = True

doc.recompute()
